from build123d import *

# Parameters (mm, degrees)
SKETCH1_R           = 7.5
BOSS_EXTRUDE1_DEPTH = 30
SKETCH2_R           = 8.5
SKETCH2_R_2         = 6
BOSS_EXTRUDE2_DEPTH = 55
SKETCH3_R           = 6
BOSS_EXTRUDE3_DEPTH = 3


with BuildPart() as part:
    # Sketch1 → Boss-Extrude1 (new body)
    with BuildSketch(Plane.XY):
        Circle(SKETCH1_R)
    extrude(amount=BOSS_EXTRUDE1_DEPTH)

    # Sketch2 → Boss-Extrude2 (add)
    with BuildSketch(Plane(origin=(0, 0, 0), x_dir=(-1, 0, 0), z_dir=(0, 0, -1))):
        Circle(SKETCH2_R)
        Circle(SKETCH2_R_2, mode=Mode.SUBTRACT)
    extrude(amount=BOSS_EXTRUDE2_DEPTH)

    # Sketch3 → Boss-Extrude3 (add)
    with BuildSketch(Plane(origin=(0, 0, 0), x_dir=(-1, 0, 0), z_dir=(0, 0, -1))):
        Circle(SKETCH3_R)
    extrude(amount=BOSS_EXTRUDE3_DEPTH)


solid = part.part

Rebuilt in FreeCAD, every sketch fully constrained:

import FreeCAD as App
import Part
import Sketcher
from FreeCAD import Vector
Q = App.Units.Quantity

doc = App.newDocument("Part")
params = doc.addObject("Spreadsheet::Sheet", "Params")
for row, (alias, value) in enumerate([
    ("sketch1_diameter", "15 mm"),
    ("pad1_length", "30 mm"),
    ("sketch2_diameter", "17 mm"),
    ("sketch2_diameter2", "12 mm"),
    ("pad2_length", "55 mm"),
    ("sketch3_diameter", "12 mm"),
    ("pad3_length", "3 mm"),
], start=1):
    params.set(f"A{row}", alias)
    params.set(f"B{row}", "=" + value)
    params.setAlias(f"B{row}", alias)

body = doc.addObject("PartDesign::Body", "Body")

# Sketch on XY plane
sketch1 = body.newObject("Sketcher::SketchObject", "Sketch")
sketch1.AttachmentSupport = (doc.getObject("XY_Plane"), [""])
sketch1.MapMode = "FlatFace"
sketch1.addGeometry(Part.Circle(Vector(0, 0, 0), Vector(0, 0, 1), 8), False)
sketch1.addConstraint([
    Sketcher.Constraint("Coincident", 0, 3, -1, 1),
    Sketcher.Constraint("Diameter", 0, Q("15 mm")),
])
sketch1.setExpression("Constraints[1]", "Params.sketch1_diameter")
pad1 = body.newObject("PartDesign::Pad", "Pad")
pad1.Profile = sketch1
pad1.setExpression("Length", "Params.pad1_length")

# Sketch on XY plane
sketch2 = body.newObject("Sketcher::SketchObject", "Sketch001")
sketch2.AttachmentSupport = (doc.getObject("XY_Plane"), [""])
sketch2.MapMode = "FlatFace"
sketch2.addGeometry([
    Part.Circle(Vector(0, 0, 0), Vector(0, 0, 1), 8),
    Part.Circle(Vector(0, 0, 0), Vector(0, 0, 1), 6),
], False)
sketch2.addConstraint([
    Sketcher.Constraint("Coincident", 0, 3, -1, 1),
    Sketcher.Constraint("Coincident", 1, 3, -1, 1),
    Sketcher.Constraint("Diameter", 0, Q("17 mm")),
    Sketcher.Constraint("Diameter", 1, Q("12 mm")),
])
sketch2.setExpression("Constraints[2]", "Params.sketch2_diameter")
sketch2.setExpression("Constraints[3]", "Params.sketch2_diameter2")
pad2 = body.newObject("PartDesign::Pad", "Pad001")
pad2.Profile = sketch2
pad2.setExpression("Length", "Params.pad2_length")
pad2.Reversed = True

# Sketch on XY plane
sketch3 = body.newObject("Sketcher::SketchObject", "Sketch002")
sketch3.AttachmentSupport = (doc.getObject("XY_Plane"), [""])
sketch3.MapMode = "FlatFace"
sketch3.addGeometry(Part.Circle(Vector(0, 0, 0), Vector(0, 0, 1), 6), False)
sketch3.addConstraint([
    Sketcher.Constraint("Coincident", 0, 3, -1, 1),
    Sketcher.Constraint("Diameter", 0, Q("12 mm")),
])
sketch3.setExpression("Constraints[1]", "Params.sketch3_diameter")
pad3 = body.newObject("PartDesign::Pad", "Pad002")
pad3.Profile = sketch3
pad3.setExpression("Length", "Params.pad3_length")
pad3.Reversed = True

doc.recompute()
